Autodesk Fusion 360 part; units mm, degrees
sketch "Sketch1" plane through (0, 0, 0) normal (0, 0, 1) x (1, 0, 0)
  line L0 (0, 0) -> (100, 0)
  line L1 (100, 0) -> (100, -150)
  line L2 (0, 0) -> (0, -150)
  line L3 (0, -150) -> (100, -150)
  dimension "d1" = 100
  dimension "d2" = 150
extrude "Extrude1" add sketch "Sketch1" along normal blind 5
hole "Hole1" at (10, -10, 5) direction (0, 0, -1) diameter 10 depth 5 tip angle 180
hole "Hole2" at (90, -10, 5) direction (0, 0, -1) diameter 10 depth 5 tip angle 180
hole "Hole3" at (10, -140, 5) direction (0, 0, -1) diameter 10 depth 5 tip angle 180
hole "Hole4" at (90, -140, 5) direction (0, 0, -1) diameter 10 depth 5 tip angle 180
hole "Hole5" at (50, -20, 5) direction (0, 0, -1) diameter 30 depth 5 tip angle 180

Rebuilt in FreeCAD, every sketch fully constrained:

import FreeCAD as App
import Part
import Sketcher

V = App.Vector
Q = App.Units.Quantity

doc = App.newDocument("Part")
body = doc.addObject("PartDesign::Body", "Body")

# Sketch on XY plane
sketch1 = body.newObject("Sketcher::SketchObject", "Sketch")
sketch1.AttachmentSupport = (doc.getObject("XY_Plane"), [""])
sketch1.MapMode = "FlatFace"
sketch1.addGeometry([
    Part.LineSegment(V(100, 0, 0), V(0, 0, 0)),
    Part.LineSegment(V(0, 0, 0), V(0, -150, 0)),
    Part.LineSegment(V(0, -150, 0), V(100, -150, 0)),
    Part.LineSegment(V(100, -150, 0), V(100, 0, 0)),
], False)
sketch1.addConstraint([
    Sketcher.Constraint("Coincident", 0, 2, 1, 1),
    Sketcher.Constraint("Coincident", 1, 2, 2, 1),
    Sketcher.Constraint("Coincident", 2, 2, 3, 1),
    Sketcher.Constraint("Coincident", 3, 2, 0, 1),
    Sketcher.Constraint("Horizontal", 0),
    Sketcher.Constraint("Vertical", 1),
    Sketcher.Constraint("Horizontal", 2),
    Sketcher.Constraint("Vertical", 3),
    Sketcher.Constraint("Coincident", 0, 2, -1, 1),
    Sketcher.Constraint("DistanceX", 0, 2, 0, 1, Q("100 mm")),
    Sketcher.Constraint("DistanceY", 1, 2, 1, 1, Q("150 mm")),
])
pad1 = body.newObject("PartDesign::Pad", "Pad")
pad1.Profile = sketch1
pad1.Length = 5

# Sketch on XY plane
sketch2 = body.newObject("Sketcher::SketchObject", "Sketch001")
sketch2.AttachmentSupport = (doc.getObject("XY_Plane"), [""])
sketch2.MapMode = "FlatFace"
sketch2.AttachmentOffset = App.Placement(V(0, 0, 5), App.Rotation())
sketch2.addGeometry(Part.Circle(V(10, -10, 0), V(0, 0, 1), 5), False)
sketch2.addConstraint([
    Sketcher.Constraint("Diameter", 0, Q("10 mm")),
    Sketcher.Constraint("DistanceX", -1, 1, 0, 3, Q("10 mm")),
    Sketcher.Constraint("DistanceY", 0, 3, -1, 1, Q("10 mm")),
])
doc.recompute()
hole = body.newObject("PartDesign::Hole", "Hole")
hole.Profile = sketch2
hole.ThreadType = "None"
hole.Diameter = 10
hole.DepthType = "Dimension"
hole.Depth = 5
hole.DrillPoint = "Flat"

# Sketch on XY plane
sketch3 = body.newObject("Sketcher::SketchObject", "Sketch002")
sketch3.AttachmentSupport = (doc.getObject("XY_Plane"), [""])
sketch3.MapMode = "FlatFace"
sketch3.AttachmentOffset = App.Placement(V(0, 0, 5), App.Rotation())
sketch3.addGeometry(Part.Circle(V(90, -10, 0), V(0, 0, 1), 5), False)
sketch3.addConstraint([
    Sketcher.Constraint("Diameter", 0, Q("10 mm")),
    Sketcher.Constraint("DistanceX", -1, 1, 0, 3, Q("90 mm")),
    Sketcher.Constraint("DistanceY", 0, 3, -1, 1, Q("10 mm")),
])
doc.recompute()
hole2 = body.newObject("PartDesign::Hole", "Hole001")
hole2.Profile = sketch3
hole2.ThreadType = "None"
hole2.Diameter = 10
hole2.DepthType = "Dimension"
hole2.Depth = 5
hole2.DrillPoint = "Flat"

# Sketch on XY plane
sketch4 = body.newObject("Sketcher::SketchObject", "Sketch003")
sketch4.AttachmentSupport = (doc.getObject("XY_Plane"), [""])
sketch4.MapMode = "FlatFace"
sketch4.AttachmentOffset = App.Placement(V(0, 0, 5), App.Rotation())
sketch4.addGeometry(Part.Circle(V(10, -140, 0), V(0, 0, 1), 5), False)
sketch4.addConstraint([
    Sketcher.Constraint("Diameter", 0, Q("10 mm")),
    Sketcher.Constraint("DistanceX", -1, 1, 0, 3, Q("10 mm")),
    Sketcher.Constraint("DistanceY", 0, 3, -1, 1, Q("140 mm")),
])
doc.recompute()
hole3 = body.newObject("PartDesign::Hole", "Hole002")
hole3.Profile = sketch4
hole3.ThreadType = "None"
hole3.Diameter = 10
hole3.DepthType = "Dimension"
hole3.Depth = 5
hole3.DrillPoint = "Flat"

# Sketch on XY plane
sketch5 = body.newObject("Sketcher::SketchObject", "Sketch004")
sketch5.AttachmentSupport = (doc.getObject("XY_Plane"), [""])
sketch5.MapMode = "FlatFace"
sketch5.AttachmentOffset = App.Placement(V(0, 0, 5), App.Rotation())
sketch5.addGeometry(Part.Circle(V(90, -140, 0), V(0, 0, 1), 5), False)
sketch5.addConstraint([
    Sketcher.Constraint("Diameter", 0, Q("10 mm")),
    Sketcher.Constraint("DistanceX", -1, 1, 0, 3, Q("90 mm")),
    Sketcher.Constraint("DistanceY", 0, 3, -1, 1, Q("140 mm")),
])
doc.recompute()
hole4 = body.newObject("PartDesign::Hole", "Hole003")
hole4.Profile = sketch5
hole4.ThreadType = "None"
hole4.Diameter = 10
hole4.DepthType = "Dimension"
hole4.Depth = 5
hole4.DrillPoint = "Flat"

# Sketch on XY plane
sketch6 = body.newObject("Sketcher::SketchObject", "Sketch005")
sketch6.AttachmentSupport = (doc.getObject("XY_Plane"), [""])
sketch6.MapMode = "FlatFace"
sketch6.AttachmentOffset = App.Placement(V(0, 0, 5), App.Rotation())
sketch6.addGeometry(Part.Circle(V(50, -20, 0), V(0, 0, 1), 15), False)
sketch6.addConstraint([
    Sketcher.Constraint("Diameter", 0, Q("30 mm")),
    Sketcher.Constraint("DistanceX", -1, 1, 0, 3, Q("50 mm")),
    Sketcher.Constraint("DistanceY", 0, 3, -1, 1, Q("20 mm")),
])
doc.recompute()
hole5 = body.newObject("PartDesign::Hole", "Hole004")
hole5.Profile = sketch6
hole5.ThreadType = "None"
hole5.Diameter = 30
hole5.DepthType = "Dimension"
hole5.Depth = 5
hole5.DrillPoint = "Flat"

doc.recompute()
